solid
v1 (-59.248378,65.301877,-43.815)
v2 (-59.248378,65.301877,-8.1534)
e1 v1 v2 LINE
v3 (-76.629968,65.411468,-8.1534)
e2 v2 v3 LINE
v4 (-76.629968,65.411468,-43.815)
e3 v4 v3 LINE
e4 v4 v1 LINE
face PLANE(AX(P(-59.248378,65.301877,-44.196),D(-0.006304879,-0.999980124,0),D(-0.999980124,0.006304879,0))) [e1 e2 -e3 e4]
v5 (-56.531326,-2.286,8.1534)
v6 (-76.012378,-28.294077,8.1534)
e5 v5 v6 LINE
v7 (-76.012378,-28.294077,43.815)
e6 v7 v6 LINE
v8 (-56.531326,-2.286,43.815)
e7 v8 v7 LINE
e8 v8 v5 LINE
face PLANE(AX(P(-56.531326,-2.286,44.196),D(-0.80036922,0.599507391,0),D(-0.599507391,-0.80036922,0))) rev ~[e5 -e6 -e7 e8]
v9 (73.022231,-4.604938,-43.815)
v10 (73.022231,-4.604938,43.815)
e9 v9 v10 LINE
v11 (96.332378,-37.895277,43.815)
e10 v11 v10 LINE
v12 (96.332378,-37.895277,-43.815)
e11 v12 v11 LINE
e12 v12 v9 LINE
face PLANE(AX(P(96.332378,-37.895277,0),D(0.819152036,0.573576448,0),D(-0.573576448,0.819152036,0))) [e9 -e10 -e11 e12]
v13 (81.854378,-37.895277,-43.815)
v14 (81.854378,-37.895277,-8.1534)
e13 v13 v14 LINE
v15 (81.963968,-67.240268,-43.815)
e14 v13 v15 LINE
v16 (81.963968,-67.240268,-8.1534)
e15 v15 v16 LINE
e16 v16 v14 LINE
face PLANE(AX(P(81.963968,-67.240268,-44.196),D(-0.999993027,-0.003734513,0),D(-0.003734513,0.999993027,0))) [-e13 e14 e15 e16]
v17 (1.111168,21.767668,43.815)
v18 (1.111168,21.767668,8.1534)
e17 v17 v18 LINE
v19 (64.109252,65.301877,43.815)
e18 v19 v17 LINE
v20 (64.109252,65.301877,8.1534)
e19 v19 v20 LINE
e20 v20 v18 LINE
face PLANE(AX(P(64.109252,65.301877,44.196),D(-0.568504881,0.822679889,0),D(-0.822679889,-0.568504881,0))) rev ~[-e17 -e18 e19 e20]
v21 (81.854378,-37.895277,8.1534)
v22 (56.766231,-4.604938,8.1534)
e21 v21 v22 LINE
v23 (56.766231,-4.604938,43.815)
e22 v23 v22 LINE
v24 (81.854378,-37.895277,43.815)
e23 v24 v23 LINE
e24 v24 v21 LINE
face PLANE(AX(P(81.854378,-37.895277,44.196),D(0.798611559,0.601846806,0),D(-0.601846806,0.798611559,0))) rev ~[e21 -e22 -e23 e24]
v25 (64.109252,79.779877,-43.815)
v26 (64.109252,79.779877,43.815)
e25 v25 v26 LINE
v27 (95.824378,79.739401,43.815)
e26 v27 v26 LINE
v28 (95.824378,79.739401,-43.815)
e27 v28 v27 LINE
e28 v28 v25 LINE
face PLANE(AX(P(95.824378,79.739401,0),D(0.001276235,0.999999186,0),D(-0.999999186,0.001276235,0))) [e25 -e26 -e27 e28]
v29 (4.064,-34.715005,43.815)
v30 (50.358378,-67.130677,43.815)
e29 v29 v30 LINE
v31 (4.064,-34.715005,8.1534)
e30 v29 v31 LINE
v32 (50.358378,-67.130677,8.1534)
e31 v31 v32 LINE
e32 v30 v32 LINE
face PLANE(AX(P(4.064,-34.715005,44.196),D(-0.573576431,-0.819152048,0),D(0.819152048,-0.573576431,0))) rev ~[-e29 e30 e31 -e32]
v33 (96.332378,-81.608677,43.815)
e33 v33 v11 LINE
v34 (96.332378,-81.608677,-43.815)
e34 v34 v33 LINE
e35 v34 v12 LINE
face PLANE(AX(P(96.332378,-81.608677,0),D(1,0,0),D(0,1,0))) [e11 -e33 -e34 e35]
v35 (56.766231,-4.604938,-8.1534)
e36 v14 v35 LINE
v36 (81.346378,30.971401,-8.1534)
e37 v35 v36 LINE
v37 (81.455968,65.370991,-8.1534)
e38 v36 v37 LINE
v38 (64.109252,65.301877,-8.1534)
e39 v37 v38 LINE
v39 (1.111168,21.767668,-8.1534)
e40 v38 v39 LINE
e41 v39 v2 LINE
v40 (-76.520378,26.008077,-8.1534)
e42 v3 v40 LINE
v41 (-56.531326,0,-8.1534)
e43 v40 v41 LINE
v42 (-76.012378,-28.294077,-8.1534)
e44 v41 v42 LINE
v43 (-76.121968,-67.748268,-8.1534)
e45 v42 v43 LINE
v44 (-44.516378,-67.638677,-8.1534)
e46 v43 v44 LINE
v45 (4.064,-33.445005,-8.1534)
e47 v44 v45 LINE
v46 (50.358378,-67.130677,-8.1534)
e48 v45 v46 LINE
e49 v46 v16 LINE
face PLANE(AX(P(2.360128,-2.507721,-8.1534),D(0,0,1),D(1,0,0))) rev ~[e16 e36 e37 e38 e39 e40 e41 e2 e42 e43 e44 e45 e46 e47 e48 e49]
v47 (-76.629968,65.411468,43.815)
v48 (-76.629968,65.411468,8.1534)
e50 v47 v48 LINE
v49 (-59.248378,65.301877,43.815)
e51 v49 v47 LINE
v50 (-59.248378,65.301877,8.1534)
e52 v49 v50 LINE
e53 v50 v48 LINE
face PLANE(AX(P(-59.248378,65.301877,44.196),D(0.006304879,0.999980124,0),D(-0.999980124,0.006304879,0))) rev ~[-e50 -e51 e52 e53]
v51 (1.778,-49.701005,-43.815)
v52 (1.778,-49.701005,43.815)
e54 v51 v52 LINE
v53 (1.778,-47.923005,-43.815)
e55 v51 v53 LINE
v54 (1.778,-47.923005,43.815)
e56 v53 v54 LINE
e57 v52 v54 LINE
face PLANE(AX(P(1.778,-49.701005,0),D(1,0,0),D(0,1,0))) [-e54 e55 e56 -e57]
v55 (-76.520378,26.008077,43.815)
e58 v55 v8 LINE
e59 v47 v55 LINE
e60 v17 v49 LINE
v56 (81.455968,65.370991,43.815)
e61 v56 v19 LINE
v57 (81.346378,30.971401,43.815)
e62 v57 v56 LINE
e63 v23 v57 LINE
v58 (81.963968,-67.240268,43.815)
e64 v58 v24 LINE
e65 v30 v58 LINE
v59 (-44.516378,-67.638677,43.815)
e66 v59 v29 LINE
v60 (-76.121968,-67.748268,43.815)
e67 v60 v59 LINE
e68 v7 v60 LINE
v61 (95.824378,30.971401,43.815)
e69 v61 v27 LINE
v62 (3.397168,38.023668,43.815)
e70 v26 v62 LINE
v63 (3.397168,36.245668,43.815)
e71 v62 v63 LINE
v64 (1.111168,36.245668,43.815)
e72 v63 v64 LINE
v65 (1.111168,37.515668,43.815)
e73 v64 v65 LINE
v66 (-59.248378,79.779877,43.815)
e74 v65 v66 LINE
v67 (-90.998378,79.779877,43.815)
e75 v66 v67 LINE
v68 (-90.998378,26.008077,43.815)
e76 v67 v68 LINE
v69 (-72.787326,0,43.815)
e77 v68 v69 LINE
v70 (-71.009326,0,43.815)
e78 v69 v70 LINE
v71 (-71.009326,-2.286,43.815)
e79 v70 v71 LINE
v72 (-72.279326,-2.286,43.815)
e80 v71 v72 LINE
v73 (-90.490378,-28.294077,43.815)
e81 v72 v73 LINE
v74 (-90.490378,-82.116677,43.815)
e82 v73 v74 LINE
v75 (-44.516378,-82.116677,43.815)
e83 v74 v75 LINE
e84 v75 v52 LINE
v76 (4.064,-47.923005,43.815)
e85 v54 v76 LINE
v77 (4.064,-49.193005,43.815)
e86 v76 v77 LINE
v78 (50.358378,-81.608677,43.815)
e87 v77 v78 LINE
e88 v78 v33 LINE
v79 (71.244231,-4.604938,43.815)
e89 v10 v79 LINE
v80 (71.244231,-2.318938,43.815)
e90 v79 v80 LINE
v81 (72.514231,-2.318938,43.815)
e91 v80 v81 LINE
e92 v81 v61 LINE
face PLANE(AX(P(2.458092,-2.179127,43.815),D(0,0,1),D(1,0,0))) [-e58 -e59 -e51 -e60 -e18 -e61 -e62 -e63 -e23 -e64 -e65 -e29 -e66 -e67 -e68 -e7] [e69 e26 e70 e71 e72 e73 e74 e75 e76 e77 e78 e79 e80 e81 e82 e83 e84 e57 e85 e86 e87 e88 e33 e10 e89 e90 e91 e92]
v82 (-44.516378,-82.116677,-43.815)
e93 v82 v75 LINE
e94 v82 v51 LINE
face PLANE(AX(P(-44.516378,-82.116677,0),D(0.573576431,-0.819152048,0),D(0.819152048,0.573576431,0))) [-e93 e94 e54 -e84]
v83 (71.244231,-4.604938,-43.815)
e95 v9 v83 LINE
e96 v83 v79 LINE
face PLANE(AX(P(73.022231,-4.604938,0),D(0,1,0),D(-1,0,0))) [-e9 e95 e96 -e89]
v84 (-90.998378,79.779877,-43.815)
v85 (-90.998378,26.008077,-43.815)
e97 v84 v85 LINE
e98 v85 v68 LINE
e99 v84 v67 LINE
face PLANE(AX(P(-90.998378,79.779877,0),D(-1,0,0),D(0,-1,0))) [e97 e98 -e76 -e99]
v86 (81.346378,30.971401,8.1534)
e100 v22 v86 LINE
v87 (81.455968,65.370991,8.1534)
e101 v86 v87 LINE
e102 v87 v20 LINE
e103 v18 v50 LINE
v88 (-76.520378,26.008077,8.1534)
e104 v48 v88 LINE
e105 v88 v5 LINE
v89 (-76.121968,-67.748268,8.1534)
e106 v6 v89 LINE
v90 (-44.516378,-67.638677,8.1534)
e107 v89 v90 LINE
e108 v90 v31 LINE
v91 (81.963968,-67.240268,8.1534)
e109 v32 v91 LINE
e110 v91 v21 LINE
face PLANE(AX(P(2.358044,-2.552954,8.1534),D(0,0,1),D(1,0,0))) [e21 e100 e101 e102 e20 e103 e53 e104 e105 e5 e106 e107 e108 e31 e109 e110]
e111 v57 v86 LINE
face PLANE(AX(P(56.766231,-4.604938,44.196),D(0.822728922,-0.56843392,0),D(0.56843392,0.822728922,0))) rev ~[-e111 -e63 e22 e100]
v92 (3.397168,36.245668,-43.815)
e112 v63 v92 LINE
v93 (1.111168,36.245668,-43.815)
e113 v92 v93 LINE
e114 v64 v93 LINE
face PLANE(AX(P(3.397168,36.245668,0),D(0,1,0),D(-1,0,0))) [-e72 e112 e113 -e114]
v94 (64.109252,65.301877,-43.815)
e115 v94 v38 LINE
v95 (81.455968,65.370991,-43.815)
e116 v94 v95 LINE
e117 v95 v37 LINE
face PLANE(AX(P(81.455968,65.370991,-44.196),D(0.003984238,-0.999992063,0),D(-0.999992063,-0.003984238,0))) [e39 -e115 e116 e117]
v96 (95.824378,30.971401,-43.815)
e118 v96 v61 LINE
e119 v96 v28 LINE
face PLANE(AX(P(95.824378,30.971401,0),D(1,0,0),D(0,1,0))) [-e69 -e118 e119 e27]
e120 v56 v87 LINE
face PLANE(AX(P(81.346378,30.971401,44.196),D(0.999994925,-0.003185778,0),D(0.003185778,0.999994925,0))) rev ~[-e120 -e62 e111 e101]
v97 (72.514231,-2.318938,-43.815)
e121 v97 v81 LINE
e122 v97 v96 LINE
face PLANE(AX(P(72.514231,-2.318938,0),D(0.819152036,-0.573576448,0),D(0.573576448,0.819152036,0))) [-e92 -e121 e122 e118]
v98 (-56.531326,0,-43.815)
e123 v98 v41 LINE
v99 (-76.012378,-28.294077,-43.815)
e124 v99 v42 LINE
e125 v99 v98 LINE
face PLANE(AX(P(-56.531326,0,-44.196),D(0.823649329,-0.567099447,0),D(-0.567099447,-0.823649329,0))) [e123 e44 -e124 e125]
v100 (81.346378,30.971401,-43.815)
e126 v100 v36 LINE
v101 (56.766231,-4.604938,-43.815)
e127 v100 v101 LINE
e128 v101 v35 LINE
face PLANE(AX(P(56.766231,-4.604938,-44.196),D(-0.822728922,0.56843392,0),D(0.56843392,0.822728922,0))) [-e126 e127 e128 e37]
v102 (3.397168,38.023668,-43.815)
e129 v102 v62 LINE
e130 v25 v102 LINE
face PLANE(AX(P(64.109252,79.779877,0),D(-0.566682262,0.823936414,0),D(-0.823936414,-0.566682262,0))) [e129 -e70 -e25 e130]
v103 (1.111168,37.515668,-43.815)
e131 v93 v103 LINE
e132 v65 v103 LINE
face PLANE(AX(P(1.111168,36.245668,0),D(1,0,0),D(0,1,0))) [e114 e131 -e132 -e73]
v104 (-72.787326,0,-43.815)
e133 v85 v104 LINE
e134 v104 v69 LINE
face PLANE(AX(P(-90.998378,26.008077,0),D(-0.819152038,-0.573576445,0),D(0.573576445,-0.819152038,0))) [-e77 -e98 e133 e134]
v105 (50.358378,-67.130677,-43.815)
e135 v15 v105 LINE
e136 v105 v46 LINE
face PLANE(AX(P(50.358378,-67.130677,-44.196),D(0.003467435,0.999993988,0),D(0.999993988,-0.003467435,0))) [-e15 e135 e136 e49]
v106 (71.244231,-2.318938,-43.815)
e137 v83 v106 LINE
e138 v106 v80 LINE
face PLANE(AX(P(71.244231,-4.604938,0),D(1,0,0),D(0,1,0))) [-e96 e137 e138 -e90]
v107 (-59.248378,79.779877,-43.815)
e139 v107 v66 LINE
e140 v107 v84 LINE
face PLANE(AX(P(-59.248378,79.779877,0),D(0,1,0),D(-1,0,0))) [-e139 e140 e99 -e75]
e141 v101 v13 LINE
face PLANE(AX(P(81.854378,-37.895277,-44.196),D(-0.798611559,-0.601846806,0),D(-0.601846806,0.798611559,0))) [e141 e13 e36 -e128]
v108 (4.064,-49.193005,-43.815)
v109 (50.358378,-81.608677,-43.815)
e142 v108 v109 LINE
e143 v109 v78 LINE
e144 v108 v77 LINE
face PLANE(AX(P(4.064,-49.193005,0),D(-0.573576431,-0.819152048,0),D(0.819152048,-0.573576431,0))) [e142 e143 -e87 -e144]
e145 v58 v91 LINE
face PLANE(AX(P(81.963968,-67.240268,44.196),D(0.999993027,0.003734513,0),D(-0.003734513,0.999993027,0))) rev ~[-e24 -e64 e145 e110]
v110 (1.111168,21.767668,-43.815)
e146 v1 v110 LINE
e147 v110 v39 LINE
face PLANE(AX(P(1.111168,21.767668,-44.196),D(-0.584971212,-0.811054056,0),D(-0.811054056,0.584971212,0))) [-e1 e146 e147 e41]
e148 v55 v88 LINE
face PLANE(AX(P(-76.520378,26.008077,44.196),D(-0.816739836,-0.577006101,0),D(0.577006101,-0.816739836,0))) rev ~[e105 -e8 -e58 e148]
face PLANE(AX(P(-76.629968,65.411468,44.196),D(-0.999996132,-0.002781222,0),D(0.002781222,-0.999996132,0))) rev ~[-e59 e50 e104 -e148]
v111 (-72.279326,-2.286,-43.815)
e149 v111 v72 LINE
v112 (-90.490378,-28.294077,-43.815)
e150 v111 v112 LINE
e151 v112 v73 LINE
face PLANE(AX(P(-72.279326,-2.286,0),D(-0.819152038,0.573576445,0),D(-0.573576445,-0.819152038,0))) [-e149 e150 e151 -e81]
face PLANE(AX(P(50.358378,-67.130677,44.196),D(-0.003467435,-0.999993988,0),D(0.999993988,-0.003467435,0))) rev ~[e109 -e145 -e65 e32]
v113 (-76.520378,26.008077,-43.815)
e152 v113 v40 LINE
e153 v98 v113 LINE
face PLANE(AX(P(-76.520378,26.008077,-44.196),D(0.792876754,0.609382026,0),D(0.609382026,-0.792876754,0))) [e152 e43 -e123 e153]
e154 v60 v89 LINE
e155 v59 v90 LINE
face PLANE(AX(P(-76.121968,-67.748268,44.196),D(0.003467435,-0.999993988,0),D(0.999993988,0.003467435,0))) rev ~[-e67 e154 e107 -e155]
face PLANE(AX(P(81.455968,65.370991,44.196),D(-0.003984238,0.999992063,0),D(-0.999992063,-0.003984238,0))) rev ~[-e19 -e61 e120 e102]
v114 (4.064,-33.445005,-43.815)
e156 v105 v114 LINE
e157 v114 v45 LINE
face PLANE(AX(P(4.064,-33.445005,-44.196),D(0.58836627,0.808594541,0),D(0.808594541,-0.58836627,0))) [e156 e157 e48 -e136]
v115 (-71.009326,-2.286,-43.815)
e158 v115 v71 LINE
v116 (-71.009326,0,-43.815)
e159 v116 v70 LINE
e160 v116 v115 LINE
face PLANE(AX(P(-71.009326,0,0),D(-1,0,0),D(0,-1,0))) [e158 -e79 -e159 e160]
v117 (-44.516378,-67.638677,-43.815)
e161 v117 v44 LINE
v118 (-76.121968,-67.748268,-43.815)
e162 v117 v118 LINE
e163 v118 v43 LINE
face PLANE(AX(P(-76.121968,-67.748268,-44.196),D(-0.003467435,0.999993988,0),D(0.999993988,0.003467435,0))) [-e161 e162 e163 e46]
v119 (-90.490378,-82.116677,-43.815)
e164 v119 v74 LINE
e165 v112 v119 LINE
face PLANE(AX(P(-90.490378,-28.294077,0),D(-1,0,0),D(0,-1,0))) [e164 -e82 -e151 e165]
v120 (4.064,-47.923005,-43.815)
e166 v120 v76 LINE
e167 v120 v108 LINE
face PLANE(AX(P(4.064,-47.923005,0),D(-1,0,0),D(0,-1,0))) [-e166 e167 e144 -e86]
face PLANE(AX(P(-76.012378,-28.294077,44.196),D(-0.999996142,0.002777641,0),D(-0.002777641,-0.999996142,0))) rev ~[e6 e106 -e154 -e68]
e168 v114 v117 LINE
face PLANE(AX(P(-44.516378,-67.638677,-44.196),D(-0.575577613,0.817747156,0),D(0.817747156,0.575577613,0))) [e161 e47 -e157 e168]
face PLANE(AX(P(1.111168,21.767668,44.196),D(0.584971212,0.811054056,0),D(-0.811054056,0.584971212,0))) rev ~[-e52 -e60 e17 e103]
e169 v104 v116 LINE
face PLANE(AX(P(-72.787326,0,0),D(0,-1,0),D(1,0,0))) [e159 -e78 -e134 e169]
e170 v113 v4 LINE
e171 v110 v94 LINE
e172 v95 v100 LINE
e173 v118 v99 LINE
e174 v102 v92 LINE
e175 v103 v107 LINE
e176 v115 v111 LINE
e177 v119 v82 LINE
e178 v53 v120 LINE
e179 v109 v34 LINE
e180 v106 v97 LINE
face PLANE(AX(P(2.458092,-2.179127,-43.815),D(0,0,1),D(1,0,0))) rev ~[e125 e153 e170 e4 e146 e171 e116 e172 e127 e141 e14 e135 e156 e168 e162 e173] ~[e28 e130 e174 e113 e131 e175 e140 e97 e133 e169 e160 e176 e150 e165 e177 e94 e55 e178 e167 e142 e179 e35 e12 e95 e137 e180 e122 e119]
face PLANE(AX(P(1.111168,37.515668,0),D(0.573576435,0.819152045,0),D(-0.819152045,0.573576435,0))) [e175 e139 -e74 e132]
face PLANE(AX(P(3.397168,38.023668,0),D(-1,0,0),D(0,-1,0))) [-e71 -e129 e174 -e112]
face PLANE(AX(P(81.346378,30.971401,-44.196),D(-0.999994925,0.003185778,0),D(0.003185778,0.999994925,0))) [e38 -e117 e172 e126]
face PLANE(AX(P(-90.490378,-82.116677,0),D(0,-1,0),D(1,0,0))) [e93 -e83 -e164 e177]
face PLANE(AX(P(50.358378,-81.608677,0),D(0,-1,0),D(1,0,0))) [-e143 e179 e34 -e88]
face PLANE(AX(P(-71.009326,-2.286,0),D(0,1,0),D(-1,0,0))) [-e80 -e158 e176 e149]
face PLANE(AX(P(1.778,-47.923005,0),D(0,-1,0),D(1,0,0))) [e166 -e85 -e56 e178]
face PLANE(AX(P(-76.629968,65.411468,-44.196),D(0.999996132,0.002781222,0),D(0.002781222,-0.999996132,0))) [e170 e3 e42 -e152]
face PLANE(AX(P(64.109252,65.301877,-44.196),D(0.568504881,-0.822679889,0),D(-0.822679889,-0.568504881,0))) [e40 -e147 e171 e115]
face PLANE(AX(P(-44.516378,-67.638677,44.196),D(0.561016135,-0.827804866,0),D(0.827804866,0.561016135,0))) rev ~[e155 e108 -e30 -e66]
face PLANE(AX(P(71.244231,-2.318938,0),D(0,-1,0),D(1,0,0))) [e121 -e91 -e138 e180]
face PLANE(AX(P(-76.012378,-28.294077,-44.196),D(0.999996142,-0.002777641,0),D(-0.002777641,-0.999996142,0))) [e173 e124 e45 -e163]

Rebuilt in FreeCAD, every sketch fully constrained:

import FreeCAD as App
import Part
import Sketcher
Q = App.Units.Quantity


def add_polygon(sketch, points):
    """Adds a closed chain of lines whose ends are joined by coincident constraints."""
    first, n = sketch.GeometryCount, len(points)
    for a, b in zip(points, points[1:] + points[:1]):
        sketch.addGeometry(Part.LineSegment(App.Vector(*a, 0), App.Vector(*b, 0)), False)
    for i in range(n):
        sketch.addConstraint(Sketcher.Constraint("Coincident", first + i, 2, first + (i + 1) % n, 1))

doc = App.newDocument("Part")
body = doc.addObject("PartDesign::Body", "Body")

# Sketch on XY plane
sketch1 = body.newObject("Sketcher::SketchObject", "Sketch")
sketch1.AttachmentSupport = (doc.getObject("XY_Plane"), [""])
sketch1.MapMode = "FlatFace"
add_polygon(sketch1, [(1.1, 37.5), (-59.2, 79.8), (-91, 79.8), (-91, 26), (-72.8, 0), (-71, 0), (-71, -2.3), (-72.3, -2.3), (-90.5, -28.3), (-90.5, -82.1), (-44.5, -82.1), (1.8, -49.7), (1.8, -47.9), (4.1, -47.9), (4.1, -49.2), (50.4, -81.6), (96.3, -81.6), (96.3, -37.9), (73, -4.6), (71.2, -4.6), (71.2, -2.3), (72.5, -2.3), (95.8, 31), (95.8, 79.7), (64.1, 79.8), (3.4, 38), (3.4, 36.2), (1.1, 36.2)])  # lines 0-27
sketch1.addConstraint([
    Sketcher.Constraint("Horizontal", 1),
    Sketcher.Constraint("Vertical", 2),
    Sketcher.Constraint("Horizontal", 4),
    Sketcher.Constraint("Vertical", 5),
    Sketcher.Constraint("Horizontal", 6),
    Sketcher.Constraint("Vertical", 8),
    Sketcher.Constraint("Horizontal", 9),
    Sketcher.Constraint("Vertical", 11),
    Sketcher.Constraint("Horizontal", 12),
    Sketcher.Constraint("Vertical", 13),
    Sketcher.Constraint("Horizontal", 15),
    Sketcher.Constraint("Vertical", 16),
    Sketcher.Constraint("Horizontal", 18),
    Sketcher.Constraint("Vertical", 19),
    Sketcher.Constraint("Horizontal", 20),
    Sketcher.Constraint("Vertical", 22),
    Sketcher.Constraint("Vertical", 25),
    Sketcher.Constraint("Horizontal", 26),
    Sketcher.Constraint("Vertical", 27),
    Sketcher.Constraint("PointOnObject", 3, 2, -1),
    Sketcher.Constraint("Perpendicular", 0, 7),
    Sketcher.Constraint("Perpendicular", 3, 10),
    Sketcher.Constraint("Perpendicular", 7, 14),
    Sketcher.Constraint("Perpendicular", 10, 17),
    Sketcher.Constraint("Perpendicular", 14, 21),
    Sketcher.Constraint("Horizontal", 1, 2, 23, 2),
    Sketcher.Constraint("Equal", 9, 15),
    Sketcher.Constraint("Equal", 4, 18),
    Sketcher.Constraint("Equal", 6, 20),
    Sketcher.Constraint("Equal", 12, 26),
    Sketcher.Constraint("Equal", 26, 5),
    Sketcher.Constraint("Equal", 18, 11),
    Sketcher.Constraint("Equal", 20, 13),
    Sketcher.Constraint("Equal", 5, 19),
    Sketcher.Constraint("Equal", 11, 25),
    Sketcher.Constraint("Equal", 13, 27),
    Sketcher.Constraint("Equal", 3, 7),
    Sketcher.Constraint("Equal", 10, 14),
    Sketcher.Constraint("Equal", 17, 21),
    Sketcher.Constraint("Equal", 0, 24),
    Sketcher.Constraint("Angle", 0, Q("145 deg")),
    Sketcher.Constraint("Angle", 3, Q("-54.999999 deg")),
    Sketcher.Constraint("Distance", 17, Q("1.6 in")),
    Sketcher.Constraint("DistanceX", 1, 2, 1, 1, Q("1.25 in")),
    Sketcher.Constraint("DistanceX", 4, 1, 4, 2, Q("0.07 in")),
    Sketcher.Constraint("DistanceX", 6, 2, 6, 1, Q("0.05 in")),
    Sketcher.Constraint("DistanceX", 9, 1, 9, 2, Q("1.81 in")),
    Sketcher.Constraint("DistanceX", 12, 1, 12, 2, Q("0.09 in")),
    Sketcher.Constraint("DistanceY", 22, 1, 22, 2, Q("1.92 in")),
    Sketcher.Constraint("Distance", 3, Q("1.25 in")),
    Sketcher.Constraint("DistanceY", 2, 2, 2, 1, Q("2.117 in")),
    Sketcher.Constraint("DistanceY", 8, 2, 8, 1, Q("2.119 in")),
    Sketcher.Constraint("DistanceY", 16, 1, 16, 2, Q("1.721 in")),
    Sketcher.Constraint("DistanceX", -1, 1, 10, 2, Q("0.07 in")),
    Sketcher.Constraint("Distance", 0, Q("2.901 in")),
    Sketcher.Constraint("Distance", 10, Q("2.225 in")),
])
pad1 = body.newObject("PartDesign::Pad", "Pad")
pad1.Profile = sketch1
pad1.Length = Q("3.45 in")
pad1.Midplane = True

# Sketch on XY plane
sketch2 = body.newObject("Sketcher::SketchObject", "Sketch001")
sketch2.AttachmentSupport = (doc.getObject("XY_Plane"), [""])
sketch2.MapMode = "FlatFace"
sketch2.AttachmentOffset = App.Placement(App.Vector(0, 0, 1.74 * 25.4), App.Rotation())
add_polygon(sketch2, [(81.455968, 65.370991), (64.109252, 65.301877), (1.111168, 21.767668), (-59.248378, 65.301877), (-76.629968, 65.411468), (-76.520378, 26.008077), (-56.531326, -2.286), (-76.012378, -28.294077), (-76.121968, -67.748268), (-44.516378, -67.638677), (4.064, -34.715005), (50.358378, -67.130677), (81.963968, -67.240268), (81.854378, -37.895277), (56.766231, -4.604938), (81.346378, 30.971401)])  # lines 0-15
sketch2.addConstraint([
    Sketcher.Constraint("Horizontal", 0, 2, 2, 2),
    Sketcher.Constraint("Equal", 8, 11),
    Sketcher.Constraint("Angle", 10, Q("-35 deg")),
    Sketcher.Constraint("DistanceY", 5, 2, -1, 1, Q("0.09 in")),
    Sketcher.Constraint("DistanceX", -1, 1, 9, 2, Q("0.16 in")),
    Sketcher.Constraint("DistanceX", 4, 2, 2, 2, Q("0.68 in")),
    Sketcher.Constraint("DistanceX", 4, 2, 6, 2, Q("0.02 in")),
    Sketcher.Constraint("DistanceX", 3, 2, 7, 2, Q("0.02 in")),
    Sketcher.Constraint("DistanceX", 6, 2, 8, 2, Q("1.24 in")),
    Sketcher.Constraint("DistanceY", 8, 2, 10, 2, Q("0.02 in")),
    Sketcher.Constraint("DistanceX", 10, 2, 12, 2, Q("1.24 in")),
    Sketcher.Constraint("DistanceX", 14, 2, 12, 2, Q("0.02 in")),
    Sketcher.Constraint("Distance", 10, Q("2.225 in")),
    Sketcher.Constraint("DistanceY", 4, 2, 2, 2, Q("1.547 in")),
    Sketcher.Constraint("DistanceY", 8, 2, 6, 2, Q("1.549 in")),
    Sketcher.Constraint("DistanceY", 10, 2, 12, 2, Q("1.151 in")),
    Sketcher.Constraint("Distance", 6, 32.495099),
    Sketcher.Constraint("DistanceY", -1, 1, 14, 2, 30.971401),
    Sketcher.Constraint("DistanceY", 1, 2, 3, 2, 43.6438),
    Sketcher.Constraint("DistanceX", 1, 2, 11, 2, 80.8528),
    Sketcher.Constraint("DistanceX", 1, 2, 15, 2, 80.3448),
    Sketcher.Constraint("Distance", 8, 31.60578),
    Sketcher.Constraint("Distance", 13, 41.685271),
    Sketcher.Constraint("DistanceX", -1, 1, 0, 2, 64.109252),
    Sketcher.Constraint("DistanceY", -1, 1, 1, 2, 21.767668),
    Sketcher.Constraint("DistanceX", 2, 2, -1, 1, 59.248378),
    Sketcher.Constraint("DistanceX", 3, 2, -1, 1, 76.629968),
    Sketcher.Constraint("DistanceY", 11, 2, -1, 1, 67.240268),
    Sketcher.Constraint("DistanceX", -1, 1, 13, 2, 56.766231),
    Sketcher.Constraint("DistanceY", -1, 1, 15, 2, 65.370991),
    Sketcher.Constraint("DistanceY", 1, 2, 0, 2, 43.534209),
    Sketcher.Constraint("DistanceX", 4, 2, 5, 2, 19.989052),
])
pocket1 = body.newObject("PartDesign::Pocket", "Pocket")
pocket1.Profile = sketch2
pocket1.Length = Q("1.419 in")

# Sketch on XY plane
sketch3 = body.newObject("Sketcher::SketchObject", "Sketch002")
sketch3.AttachmentSupport = (doc.getObject("XY_Plane"), [""])
sketch3.MapMode = "FlatFace"
sketch3.AttachmentOffset = App.Placement(App.Vector(0, 0, -1.74 * 25.4), App.Rotation())
add_polygon(sketch3, [(-76, -28), (-76, -68), (-45, -68), (4, -33), (50, -67), (82, -67), (82, -38), (57, -5), (81, 31), (81, 65), (64, 65), (1, 22), (-59, 65), (-77, 65), (-77, 26), (-57, 0)])  # lines 0-15
sketch3.addConstraint([
    Sketcher.Constraint("PointOnObject", 14, 2, -1),
    Sketcher.Constraint("Horizontal", 9, 2, 11, 2),
    Sketcher.Constraint("Equal", 1, 4),
    Sketcher.Constraint("DistanceX", -1, 1, 2, 2, Q("0.16 in")),
    Sketcher.Constraint("DistanceY", 1, 2, 3, 2, Q("0.02 in")),
    Sketcher.Constraint("DistanceY", 0, 2, 4, 2, Q("0.02 in")),
    Sketcher.Constraint("DistanceX", 3, 2, 5, 2, Q("1.24 in")),
    Sketcher.Constraint("DistanceX", 7, 2, 5, 2, Q("0.02 in")),
    Sketcher.Constraint("DistanceX", 8, 2, 4, 2, Q("0.02 in")),
    Sketcher.Constraint("DistanceX", 11, 2, 1, 2, Q("0.58 in")),
    Sketcher.Constraint("DistanceX", 12, 2, 0, 2, Q("0.02 in")),
    Sketcher.Constraint("DistanceX", 13, 2, 11, 2, Q("0.68 in")),
    Sketcher.Constraint("DistanceX", 15, 2, 1, 2, Q("1.24 in")),
    Sketcher.Constraint("DistanceY", 3, 2, 5, 2, Q("1.151 in")),
    Sketcher.Constraint("DistanceY", 13, 2, 11, 2, Q("1.547 in")),
    Sketcher.Constraint("DistanceY", 1, 2, 15, 2, Q("1.549 in")),
    Sketcher.Constraint("DistanceY", -1, 1, 7, 2, 30.971401),
    Sketcher.Constraint("DistanceX", 10, 2, 8, 2, 80.3448),
    Sketcher.Constraint("DistanceY", 10, 2, 12, 2, 43.6438),
    Sketcher.Constraint("Distance", 1, 31.60578),
    Sketcher.Constraint("Distance", 2, 59.407578),
    Sketcher.Constraint("Distance", 6, 41.685271),
    Sketcher.Constraint("Distance", 14, 32.802169),
    Sketcher.Constraint("Distance", 15, 34.352091),
    Sketcher.Constraint("DistanceX", 1, 2, -1, 1, 44.516378),
    Sketcher.Constraint("DistanceX", -1, 1, 3, 2, 50.358378),
    Sketcher.Constraint("DistanceY", 4, 2, -1, 1, 67.240268),
    Sketcher.Constraint("DistanceX", -1, 1, 6, 2, 56.766231),
    Sketcher.Constraint("DistanceY", -1, 1, 8, 2, 65.370991),
    Sketcher.Constraint("DistanceX", -1, 1, 9, 2, 64.109252),
    Sketcher.Constraint("DistanceY", -1, 1, 10, 2, 21.767668),
    Sketcher.Constraint("DistanceY", 0, 2, 1, 2, 0.109591),
])
pocket2 = body.newObject("PartDesign::Pocket", "Pocket001")
pocket2.Profile = sketch3
pocket2.Length = Q("1.419 in")
pocket2.Reversed = True

doc.recompute()
